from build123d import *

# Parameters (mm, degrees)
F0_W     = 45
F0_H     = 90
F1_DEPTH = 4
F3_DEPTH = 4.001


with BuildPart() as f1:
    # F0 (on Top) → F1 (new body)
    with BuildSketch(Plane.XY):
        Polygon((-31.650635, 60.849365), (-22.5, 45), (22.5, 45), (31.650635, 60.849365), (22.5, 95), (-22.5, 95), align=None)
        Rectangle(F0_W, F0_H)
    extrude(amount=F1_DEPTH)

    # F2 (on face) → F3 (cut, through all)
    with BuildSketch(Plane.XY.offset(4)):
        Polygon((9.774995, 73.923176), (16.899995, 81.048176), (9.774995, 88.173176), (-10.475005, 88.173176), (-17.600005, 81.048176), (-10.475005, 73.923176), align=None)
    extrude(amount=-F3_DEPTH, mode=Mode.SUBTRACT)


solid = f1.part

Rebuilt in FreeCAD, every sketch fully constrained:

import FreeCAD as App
import Part
import Sketcher
from FreeCAD import Vector
Q = App.Units.Quantity


def add_polygon(sketch, points):
    """Adds a closed chain of lines whose ends are joined by coincident constraints."""
    first, n = sketch.GeometryCount, len(points)
    for a, b in zip(points, points[1:] + points[:1]):
        sketch.addGeometry(Part.LineSegment(App.Vector(*a, 0), App.Vector(*b, 0)), False)
    for i in range(n):
        sketch.addConstraint(Sketcher.Constraint("Coincident", first + i, 2, first + (i + 1) % n, 1))

doc = App.newDocument("Part")
body = doc.addObject("PartDesign::Body", "Body")

# Sketch on XY plane
sketch1 = body.newObject("Sketcher::SketchObject", "Sketch")
sketch1.AttachmentSupport = (doc.getObject("XY_Plane"), [""])
sketch1.MapMode = "FlatFace"
add_polygon(sketch1, [(-32, 61), (-22, 45), (-22, -45), (22, -45), (22, 45), (32, 61), (22, 95), (-22, 95)])  # lines 0-7
sketch1.addConstraint([
    Sketcher.Constraint("Vertical", 1),
    Sketcher.Constraint("Horizontal", 2),
    Sketcher.Constraint("Vertical", 3),
    Sketcher.Constraint("Horizontal", 6),
    Sketcher.Constraint("Symmetric", 0, 2, 2, 2, -1, 1),
    Sketcher.Constraint("Symmetric", 4, 2, 7, 2, -2),
    Sketcher.Constraint("Horizontal", 0, 2, 3, 2),
    Sketcher.Constraint("Vertical", 3, 2, 5, 2),
    Sketcher.Constraint("Vertical", 1, 2, 6, 2),
    Sketcher.Constraint("DistanceX", 2, 1, 2, 2, Q("45 mm")),
    Sketcher.Constraint("DistanceY", 1, 2, 1, 1, Q("90 mm")),
    Sketcher.Constraint("Angle", 0, Q("-60 deg")),
    Sketcher.Constraint("Angle", 5, Q("105 deg")),
    Sketcher.Constraint("DistanceY", -1, 1, 5, 2, Q("95 mm")),
])
pad1 = body.newObject("PartDesign::Pad", "Pad")
pad1.Profile = sketch1
pad1.Length = 4

# Sketch on XY plane
sketch2 = body.newObject("Sketcher::SketchObject", "Sketch001")
sketch2.AttachmentSupport = (doc.getObject("XY_Plane"), [""])
sketch2.MapMode = "FlatFace"
sketch2.AttachmentOffset = App.Placement(Vector(0, 0, 4), App.Rotation())
add_polygon(sketch2, [(10, 74), (17, 81), (10, 88), (-10, 88), (-18, 81), (-10, 74)])  # lines 0-5
sketch2.addConstraint([
    Sketcher.Constraint("Horizontal", 2),
    Sketcher.Constraint("Horizontal", 5),
    Sketcher.Constraint("Perpendicular", 0, 1),
    Sketcher.Constraint("Perpendicular", 1, 3),
    Sketcher.Constraint("Perpendicular", 3, 4),
    Sketcher.Constraint("Horizontal", 0, 2, 3, 2),
    Sketcher.Constraint("Vertical", 2, 2, 4, 2),
    Sketcher.Constraint("Vertical", 1, 2, 5, 2),
    Sketcher.Constraint("DistanceX", 2, 2, 2, 1, Q("20.25 mm")),
    Sketcher.Constraint("DistanceX", 3, 2, 0, 2, Q("34.5 mm")),
    Sketcher.Constraint("DistanceX", -1, 1, 0, 2, Q("16.899995 mm")),
    Sketcher.Constraint("DistanceY", -1, 1, 0, 2, Q("81.048176 mm")),
])
pocket1 = body.newObject("PartDesign::Pocket", "Pocket")
pocket1.Profile = sketch2
pocket1.Type = "ThroughAll"

doc.recompute()
